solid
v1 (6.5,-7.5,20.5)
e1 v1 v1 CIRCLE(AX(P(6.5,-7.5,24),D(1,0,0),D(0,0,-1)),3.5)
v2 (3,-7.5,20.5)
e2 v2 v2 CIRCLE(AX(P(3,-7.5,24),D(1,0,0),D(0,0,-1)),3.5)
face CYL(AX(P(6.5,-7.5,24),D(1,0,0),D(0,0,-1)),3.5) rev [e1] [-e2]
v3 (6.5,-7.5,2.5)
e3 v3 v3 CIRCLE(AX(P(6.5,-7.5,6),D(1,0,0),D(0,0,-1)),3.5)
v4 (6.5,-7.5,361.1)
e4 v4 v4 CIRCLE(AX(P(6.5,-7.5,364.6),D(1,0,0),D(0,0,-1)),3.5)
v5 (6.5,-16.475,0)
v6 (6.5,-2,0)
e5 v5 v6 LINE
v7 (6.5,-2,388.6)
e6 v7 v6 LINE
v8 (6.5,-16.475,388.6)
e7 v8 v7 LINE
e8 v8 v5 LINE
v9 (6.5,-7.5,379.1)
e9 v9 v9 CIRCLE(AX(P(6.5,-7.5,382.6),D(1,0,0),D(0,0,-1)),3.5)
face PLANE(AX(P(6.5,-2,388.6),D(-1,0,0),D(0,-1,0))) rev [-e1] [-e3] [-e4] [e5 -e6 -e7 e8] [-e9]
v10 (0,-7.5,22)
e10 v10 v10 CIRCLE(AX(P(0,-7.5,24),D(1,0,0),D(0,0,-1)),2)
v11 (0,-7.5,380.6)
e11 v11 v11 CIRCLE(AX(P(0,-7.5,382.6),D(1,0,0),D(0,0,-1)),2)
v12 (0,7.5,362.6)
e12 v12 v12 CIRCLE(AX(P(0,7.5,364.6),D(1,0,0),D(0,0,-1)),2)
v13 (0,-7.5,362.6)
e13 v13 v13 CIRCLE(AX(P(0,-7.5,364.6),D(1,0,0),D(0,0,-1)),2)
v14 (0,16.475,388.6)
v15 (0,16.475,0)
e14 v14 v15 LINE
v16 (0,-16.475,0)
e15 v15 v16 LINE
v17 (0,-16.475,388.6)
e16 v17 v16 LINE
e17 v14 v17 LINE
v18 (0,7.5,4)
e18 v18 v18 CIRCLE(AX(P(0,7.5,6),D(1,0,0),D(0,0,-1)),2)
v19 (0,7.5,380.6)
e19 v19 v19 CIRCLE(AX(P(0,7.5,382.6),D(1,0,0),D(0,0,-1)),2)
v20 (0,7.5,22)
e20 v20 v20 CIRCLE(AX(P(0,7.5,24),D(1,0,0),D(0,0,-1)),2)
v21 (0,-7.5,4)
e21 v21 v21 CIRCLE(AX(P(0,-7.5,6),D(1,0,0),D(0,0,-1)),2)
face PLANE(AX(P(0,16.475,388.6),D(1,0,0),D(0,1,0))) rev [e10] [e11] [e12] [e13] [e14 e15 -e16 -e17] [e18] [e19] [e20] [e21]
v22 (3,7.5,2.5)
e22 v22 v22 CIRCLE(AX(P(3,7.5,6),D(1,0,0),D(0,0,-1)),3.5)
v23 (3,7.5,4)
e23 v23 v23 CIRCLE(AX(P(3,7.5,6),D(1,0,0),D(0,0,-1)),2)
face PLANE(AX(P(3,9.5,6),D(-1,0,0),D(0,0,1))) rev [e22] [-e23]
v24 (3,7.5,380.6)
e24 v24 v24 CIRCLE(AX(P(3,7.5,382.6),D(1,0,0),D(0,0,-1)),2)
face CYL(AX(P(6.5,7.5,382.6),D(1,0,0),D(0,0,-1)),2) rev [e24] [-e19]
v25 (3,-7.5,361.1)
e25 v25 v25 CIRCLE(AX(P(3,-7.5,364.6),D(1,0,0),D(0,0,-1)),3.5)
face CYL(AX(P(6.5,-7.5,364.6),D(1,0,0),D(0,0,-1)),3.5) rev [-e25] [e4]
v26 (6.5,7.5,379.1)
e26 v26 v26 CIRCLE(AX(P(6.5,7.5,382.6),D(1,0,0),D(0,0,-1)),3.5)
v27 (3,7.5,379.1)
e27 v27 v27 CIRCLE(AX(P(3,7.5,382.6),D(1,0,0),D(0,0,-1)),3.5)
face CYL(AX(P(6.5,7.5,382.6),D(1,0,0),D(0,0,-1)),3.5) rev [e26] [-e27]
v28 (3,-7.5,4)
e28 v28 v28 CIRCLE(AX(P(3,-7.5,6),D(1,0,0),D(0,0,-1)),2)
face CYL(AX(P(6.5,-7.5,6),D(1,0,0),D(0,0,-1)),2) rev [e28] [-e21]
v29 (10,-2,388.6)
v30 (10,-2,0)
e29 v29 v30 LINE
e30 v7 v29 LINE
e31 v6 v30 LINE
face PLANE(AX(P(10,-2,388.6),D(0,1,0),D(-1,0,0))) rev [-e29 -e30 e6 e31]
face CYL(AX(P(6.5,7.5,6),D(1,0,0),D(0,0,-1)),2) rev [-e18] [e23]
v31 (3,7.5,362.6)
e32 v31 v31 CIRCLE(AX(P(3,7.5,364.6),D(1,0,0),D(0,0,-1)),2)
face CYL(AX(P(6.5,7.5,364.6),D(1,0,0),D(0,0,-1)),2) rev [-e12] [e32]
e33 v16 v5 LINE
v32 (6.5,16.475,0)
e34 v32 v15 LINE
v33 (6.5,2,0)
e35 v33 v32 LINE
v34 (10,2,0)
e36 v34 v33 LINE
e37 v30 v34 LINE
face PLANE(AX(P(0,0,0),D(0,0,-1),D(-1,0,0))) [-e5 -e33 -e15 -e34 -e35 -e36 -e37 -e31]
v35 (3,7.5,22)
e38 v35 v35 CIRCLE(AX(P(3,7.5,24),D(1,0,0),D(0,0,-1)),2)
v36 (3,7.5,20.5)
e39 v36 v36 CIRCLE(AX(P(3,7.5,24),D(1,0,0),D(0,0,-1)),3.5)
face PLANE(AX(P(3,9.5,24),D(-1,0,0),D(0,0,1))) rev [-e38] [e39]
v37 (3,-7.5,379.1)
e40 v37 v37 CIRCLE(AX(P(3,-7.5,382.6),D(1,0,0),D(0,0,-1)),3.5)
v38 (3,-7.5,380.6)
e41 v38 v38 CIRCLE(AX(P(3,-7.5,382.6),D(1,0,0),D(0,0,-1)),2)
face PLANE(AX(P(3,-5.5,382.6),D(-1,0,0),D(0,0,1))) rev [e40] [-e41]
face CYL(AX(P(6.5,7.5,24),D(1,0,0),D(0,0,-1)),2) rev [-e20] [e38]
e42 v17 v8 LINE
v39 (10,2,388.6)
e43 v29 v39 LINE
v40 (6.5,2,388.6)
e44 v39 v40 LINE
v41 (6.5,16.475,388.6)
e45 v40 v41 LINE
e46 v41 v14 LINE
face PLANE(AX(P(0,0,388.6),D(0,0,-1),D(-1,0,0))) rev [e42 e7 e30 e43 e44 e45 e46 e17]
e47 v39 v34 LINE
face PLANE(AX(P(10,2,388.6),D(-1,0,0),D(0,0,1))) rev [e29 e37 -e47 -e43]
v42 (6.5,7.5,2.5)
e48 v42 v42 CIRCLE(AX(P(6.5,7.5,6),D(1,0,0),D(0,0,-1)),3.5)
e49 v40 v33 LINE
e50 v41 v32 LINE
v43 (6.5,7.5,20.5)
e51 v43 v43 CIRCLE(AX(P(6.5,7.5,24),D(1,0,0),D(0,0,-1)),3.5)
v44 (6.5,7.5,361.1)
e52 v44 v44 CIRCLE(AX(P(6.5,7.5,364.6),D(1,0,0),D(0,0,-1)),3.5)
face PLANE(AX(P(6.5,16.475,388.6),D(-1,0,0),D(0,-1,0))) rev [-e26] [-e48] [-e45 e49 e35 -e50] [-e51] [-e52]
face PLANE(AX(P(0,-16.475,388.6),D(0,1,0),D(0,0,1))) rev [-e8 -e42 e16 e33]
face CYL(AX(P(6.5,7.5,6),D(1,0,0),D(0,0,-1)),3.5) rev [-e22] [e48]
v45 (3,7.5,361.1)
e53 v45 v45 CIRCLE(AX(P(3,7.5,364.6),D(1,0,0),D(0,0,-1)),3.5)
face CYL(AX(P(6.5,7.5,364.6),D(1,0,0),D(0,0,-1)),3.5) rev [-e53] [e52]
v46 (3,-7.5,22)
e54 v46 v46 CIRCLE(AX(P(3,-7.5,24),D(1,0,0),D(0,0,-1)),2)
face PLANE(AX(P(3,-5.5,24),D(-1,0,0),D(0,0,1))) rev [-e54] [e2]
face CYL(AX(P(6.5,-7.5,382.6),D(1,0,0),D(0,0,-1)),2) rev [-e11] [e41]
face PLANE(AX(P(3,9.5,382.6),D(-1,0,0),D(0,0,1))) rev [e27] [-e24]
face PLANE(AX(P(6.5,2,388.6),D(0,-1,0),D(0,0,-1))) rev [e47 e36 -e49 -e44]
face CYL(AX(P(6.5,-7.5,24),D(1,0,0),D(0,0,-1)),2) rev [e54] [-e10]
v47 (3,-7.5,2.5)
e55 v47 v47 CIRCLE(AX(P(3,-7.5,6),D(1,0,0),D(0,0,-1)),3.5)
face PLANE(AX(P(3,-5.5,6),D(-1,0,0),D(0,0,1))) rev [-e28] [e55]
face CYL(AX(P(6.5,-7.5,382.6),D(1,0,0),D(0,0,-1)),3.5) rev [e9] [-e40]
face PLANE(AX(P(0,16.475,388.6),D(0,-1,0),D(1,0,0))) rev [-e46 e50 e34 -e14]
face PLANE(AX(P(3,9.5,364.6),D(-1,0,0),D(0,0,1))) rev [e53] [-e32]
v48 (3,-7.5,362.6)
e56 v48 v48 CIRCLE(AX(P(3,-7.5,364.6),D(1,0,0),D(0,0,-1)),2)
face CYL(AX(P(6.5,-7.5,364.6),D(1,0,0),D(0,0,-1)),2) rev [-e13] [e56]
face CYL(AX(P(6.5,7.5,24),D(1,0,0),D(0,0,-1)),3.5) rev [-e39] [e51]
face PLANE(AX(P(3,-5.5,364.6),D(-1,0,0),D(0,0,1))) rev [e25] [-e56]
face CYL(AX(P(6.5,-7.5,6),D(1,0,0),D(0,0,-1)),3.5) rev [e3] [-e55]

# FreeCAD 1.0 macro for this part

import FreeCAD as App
import Part
import Sketcher

V = App.Vector
Q = App.Units.Quantity


def add_polygon(sketch, points):
    """Adds a closed chain of lines whose ends are joined by coincident constraints."""
    first, n = sketch.GeometryCount, len(points)
    for a, b in zip(points, points[1:] + points[:1]):
        sketch.addGeometry(Part.LineSegment(App.Vector(*a, 0), App.Vector(*b, 0)), False)
    for i in range(n):
        sketch.addConstraint(Sketcher.Constraint("Coincident", first + i, 2, first + (i + 1) % n, 1))

doc = App.newDocument("Part")
body = doc.addObject("PartDesign::Body", "Body")

# Sketch on XY plane
sketch1 = body.newObject("Sketcher::SketchObject", "Sketch")
sketch1.AttachmentSupport = (doc.getObject("XY_Plane"), [""])
sketch1.MapMode = "FlatFace"
add_polygon(sketch1, [(0, 16.5), (0, -16.5), (6.5, -16.5), (6.5, -2), (10, -2), (10, 2), (6.5, 2), (6.5, 16.5)])  # lines 0-7
sketch1.addConstraint([
    Sketcher.Constraint("Vertical", 0),
    Sketcher.Constraint("Horizontal", 1),
    Sketcher.Constraint("Vertical", 2),
    Sketcher.Constraint("Horizontal", 3),
    Sketcher.Constraint("Vertical", 4),
    Sketcher.Constraint("Horizontal", 5),
    Sketcher.Constraint("Vertical", 6),
    Sketcher.Constraint("Horizontal", 7),
    Sketcher.Constraint("Symmetric", 0, 2, 7, 2, -1, 1),
    Sketcher.Constraint("Symmetric", 2, 2, 5, 2, -1),
    Sketcher.Constraint("DistanceY", 4, 1, 4, 2, Q("4 mm")),
    Sketcher.Constraint("DistanceX", 1, 1, 1, 2, Q("6.5 mm")),
    Sketcher.Constraint("DistanceX", 3, 1, 3, 2, Q("3.5 mm")),
    Sketcher.Constraint("DistanceY", 0, 2, 0, 1, Q("32.95 mm")),
])
pad1 = body.newObject("PartDesign::Pad", "Pad")
pad1.Profile = sketch1
pad1.Length = 388.6

# Sketch on YZ plane
sketch2 = body.newObject("Sketcher::SketchObject", "Sketch001")
sketch2.AttachmentSupport = (doc.getObject("YZ_Plane"), [""])
sketch2.MapMode = "FlatFace"
sketch2.AttachmentOffset = App.Placement(V(0, 0, 6.5), App.Rotation())
sketch2.addGeometry([
    Part.Circle(V(-7.5, 382.6, 0), V(0, 0, 1), 2),  # 0
    Part.Circle(V(-7.5, 364.6, 0), V(0, 0, 1), 2),  # 1
    Part.Circle(V(7.5, 364.6, 0), V(0, 0, 1), 2),  # 2
    Part.Circle(V(7.5, 382.6, 0), V(0, 0, 1), 2),  # 3
    Part.Circle(V(7.5, 24, 0), V(0, 0, 1), 2),  # 4
    Part.Circle(V(-7.5, 24, 0), V(0, 0, 1), 2),  # 5
    Part.Circle(V(-7.5, 6, 0), V(0, 0, 1), 2),  # 6
    Part.Circle(V(7.5, 6, 0), V(0, 0, 1), 2),  # 7
], False)
sketch2.addConstraint([
    Sketcher.Constraint("Equal", 0, 1),
    Sketcher.Constraint("Equal", 1, 2),
    Sketcher.Constraint("Equal", 2, 3),
    Sketcher.Constraint("Equal", 3, 4),
    Sketcher.Constraint("Equal", 4, 5),
    Sketcher.Constraint("Equal", 5, 6),
    Sketcher.Constraint("Equal", 6, 7),
    Sketcher.Constraint("Symmetric", 1, 3, 2, 3, -2),
    Sketcher.Constraint("Symmetric", 0, 3, 3, 3, -2),
    Sketcher.Constraint("Symmetric", 4, 3, 5, 3, -2),
    Sketcher.Constraint("Symmetric", 6, 3, 7, 3, -2),
    Sketcher.Constraint("Vertical", 0, 3, 1, 3),
    Sketcher.Constraint("Vertical", 3, 3, 4, 3),
    Sketcher.Constraint("Vertical", 5, 3, 6, 3),
    Sketcher.Constraint("Diameter", 0, Q("4 mm")),
    Sketcher.Constraint("DistanceY", -1, 1, 4, 3, Q("24 mm")),
    Sketcher.Constraint("DistanceY", -1, 1, 6, 3, Q("6 mm")),
    Sketcher.Constraint("DistanceY", 1, 3, 0, 3, Q("18 mm")),
    Sketcher.Constraint("DistanceX", 1, 3, 2, 3, Q("15 mm")),
    Sketcher.Constraint("DistanceY", -1, 1, 0, 3, Q("382.6 mm")),
])
doc.recompute()
hole = body.newObject("PartDesign::Hole", "Hole")
hole.Profile = sketch2
hole.ThreadType = "None"
hole.Diameter = 4
hole.DepthType = "ThroughAll"
hole.HoleCutType = "Counterbore"
hole.HoleCutDiameter = 7
hole.HoleCutDepth = 3.5

doc.recompute()
